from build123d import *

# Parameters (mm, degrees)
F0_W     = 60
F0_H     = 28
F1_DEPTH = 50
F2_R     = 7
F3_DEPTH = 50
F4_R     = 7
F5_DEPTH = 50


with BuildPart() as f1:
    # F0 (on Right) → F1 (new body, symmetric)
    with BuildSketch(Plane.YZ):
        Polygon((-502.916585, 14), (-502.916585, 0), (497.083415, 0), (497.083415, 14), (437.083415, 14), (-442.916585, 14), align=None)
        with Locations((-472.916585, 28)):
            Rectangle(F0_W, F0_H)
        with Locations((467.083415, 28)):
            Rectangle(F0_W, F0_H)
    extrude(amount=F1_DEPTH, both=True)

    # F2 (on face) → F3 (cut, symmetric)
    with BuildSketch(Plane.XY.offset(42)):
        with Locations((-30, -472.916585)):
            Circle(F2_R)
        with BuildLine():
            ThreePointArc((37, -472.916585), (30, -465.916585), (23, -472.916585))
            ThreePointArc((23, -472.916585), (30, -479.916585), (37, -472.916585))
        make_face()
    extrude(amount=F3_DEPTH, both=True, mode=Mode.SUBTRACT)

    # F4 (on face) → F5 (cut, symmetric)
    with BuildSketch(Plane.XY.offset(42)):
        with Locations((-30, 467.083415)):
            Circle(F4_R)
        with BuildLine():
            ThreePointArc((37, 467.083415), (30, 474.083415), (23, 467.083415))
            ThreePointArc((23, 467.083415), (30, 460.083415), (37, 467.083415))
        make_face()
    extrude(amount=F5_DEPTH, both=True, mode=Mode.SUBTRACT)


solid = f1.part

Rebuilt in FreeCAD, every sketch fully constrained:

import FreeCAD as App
import Part
import Sketcher
Q = App.Units.Quantity


def add_polygon(sketch, points):
    """Adds a closed chain of lines whose ends are joined by coincident constraints."""
    first, n = sketch.GeometryCount, len(points)
    for a, b in zip(points, points[1:] + points[:1]):
        sketch.addGeometry(Part.LineSegment(App.Vector(*a, 0), App.Vector(*b, 0)), False)
    for i in range(n):
        sketch.addConstraint(Sketcher.Constraint("Coincident", first + i, 2, first + (i + 1) % n, 1))

doc = App.newDocument("Part")
params = doc.addObject("Spreadsheet::Sheet", "Params")
for row, (alias, value) in enumerate([
    ("sketch1_width", "1000 mm"),
    ("sketch1_width2", "60 mm"),
    ("sketch1_height", "42 mm"),
    ("sketch1_height2", "28 mm"),
    ("pad1_length", "100 mm"),
    ("sketch2_diameter", "14 mm"),
    ("pocket1_length", "100 mm"),
    ("sketch3_diameter", "14 mm"),
    ("pocket2_length", "100 mm"),
], start=1):
    params.set(f"A{row}", alias)
    params.set(f"B{row}", "=" + value)
    params.setAlias(f"B{row}", alias)

body = doc.addObject("PartDesign::Body", "Body")

sketch1 = body.newObject("Sketcher::SketchObject", "Sketch")
sketch1.AttachmentSupport = (doc.getObject("YZ_Plane"), [""])
sketch1.MapMode = "FlatFace"
add_polygon(sketch1, [(-502.916585, 0), (497.083415, 0), (497.083415, 42), (437.083415, 42), (437.083415, 14), (-442.916585, 14), (-442.916585, 42), (-502.916585, 42)])
sketch1.addConstraint(Sketcher.Constraint("Horizontal", 0))
sketch1.addConstraint(Sketcher.Constraint("Vertical", 1))
sketch1.addConstraint(Sketcher.Constraint("Horizontal", 2))
sketch1.addConstraint(Sketcher.Constraint("Vertical", 3))
sketch1.addConstraint(Sketcher.Constraint("Horizontal", 4))
sketch1.addConstraint(Sketcher.Constraint("Vertical", 5))
sketch1.addConstraint(Sketcher.Constraint("Horizontal", 6))
sketch1.addConstraint(Sketcher.Constraint("Vertical", 7))
sketch1.addConstraint(Sketcher.Constraint("PointOnObject", 0, 2, -1))
sketch1.addConstraint(Sketcher.Constraint("Horizontal", 2, 2, 5, 2))
sketch1.addConstraint(Sketcher.Constraint("Equal", 2, 6))
sketch1.addConstraint(Sketcher.Constraint("DistanceX", 0, 1, 0, 2, Q("1000 mm")))
sketch1.addConstraint(Sketcher.Constraint("DistanceX", 2, 2, 2, 1, Q("60 mm")))
sketch1.addConstraint(Sketcher.Constraint("DistanceY", 1, 1, 1, 2, Q("42 mm")))
sketch1.addConstraint(Sketcher.Constraint("DistanceY", 3, 2, 3, 1, Q("28 mm")))
sketch1.addConstraint(Sketcher.Constraint("DistanceX", -1, 1, 0, 2, Q("497.083415 mm")))
sketch1.setExpression("Constraints[19]", "Params.sketch1_width")
sketch1.setExpression("Constraints[20]", "Params.sketch1_width2")
sketch1.setExpression("Constraints[21]", "Params.sketch1_height")
sketch1.setExpression("Constraints[22]", "Params.sketch1_height2")
pad1 = body.newObject("PartDesign::Pad", "Pad")
pad1.Profile = sketch1
pad1.setExpression("Length", "Params.pad1_length")
pad1.Midplane = True

sketch2 = body.newObject("Sketcher::SketchObject", "Sketch001")
sketch2.AttachmentSupport = (doc.getObject("XY_Plane"), [""])
sketch2.MapMode = "FlatFace"
sketch2.AttachmentOffset = App.Placement(App.Vector(0, 0, 42), App.Rotation())
sketch2.addGeometry(Part.Circle(App.Vector(-30, -472.916585, 0), App.Vector(0, 0, 1), 7), False)
sketch2.addGeometry(Part.Circle(App.Vector(30, -472.916585, 0), App.Vector(0, 0, 1), 7), False)
sketch2.addConstraint(Sketcher.Constraint("Equal", 0, 1))
sketch2.addConstraint(Sketcher.Constraint("Symmetric", 0, 3, 1, 3, -2))
sketch2.addConstraint(Sketcher.Constraint("Diameter", 0, Q("14 mm")))
sketch2.addConstraint(Sketcher.Constraint("DistanceX", 0, 3, -1, 1, Q("30 mm")))
sketch2.addConstraint(Sketcher.Constraint("DistanceY", 0, 3, -1, 1, Q("472.916585 mm")))
sketch2.setExpression("Constraints[2]", "Params.sketch2_diameter")
pocket1 = body.newObject("PartDesign::Pocket", "Pocket")
pocket1.Profile = sketch2
pocket1.setExpression("Length", "Params.pocket1_length")
pocket1.Midplane = True

sketch3 = body.newObject("Sketcher::SketchObject", "Sketch002")
sketch3.AttachmentSupport = (doc.getObject("XY_Plane"), [""])
sketch3.MapMode = "FlatFace"
sketch3.AttachmentOffset = App.Placement(App.Vector(0, 0, 42), App.Rotation())
sketch3.addGeometry(Part.Circle(App.Vector(-30, 467.083415, 0), App.Vector(0, 0, 1), 7), False)
sketch3.addGeometry(Part.Circle(App.Vector(30, 467.083415, 0), App.Vector(0, 0, 1), 7), False)
sketch3.addConstraint(Sketcher.Constraint("Equal", 0, 1))
sketch3.addConstraint(Sketcher.Constraint("Symmetric", 0, 3, 1, 3, -2))
sketch3.addConstraint(Sketcher.Constraint("Diameter", 0, Q("14 mm")))
sketch3.addConstraint(Sketcher.Constraint("DistanceX", 0, 3, -1, 1, Q("30 mm")))
sketch3.addConstraint(Sketcher.Constraint("DistanceY", -1, 1, 0, 3, Q("467.083415 mm")))
sketch3.setExpression("Constraints[2]", "Params.sketch3_diameter")
pocket2 = body.newObject("PartDesign::Pocket", "Pocket001")
pocket2.Profile = sketch3
pocket2.setExpression("Length", "Params.pocket2_length")
pocket2.Midplane = True

doc.recompute()
